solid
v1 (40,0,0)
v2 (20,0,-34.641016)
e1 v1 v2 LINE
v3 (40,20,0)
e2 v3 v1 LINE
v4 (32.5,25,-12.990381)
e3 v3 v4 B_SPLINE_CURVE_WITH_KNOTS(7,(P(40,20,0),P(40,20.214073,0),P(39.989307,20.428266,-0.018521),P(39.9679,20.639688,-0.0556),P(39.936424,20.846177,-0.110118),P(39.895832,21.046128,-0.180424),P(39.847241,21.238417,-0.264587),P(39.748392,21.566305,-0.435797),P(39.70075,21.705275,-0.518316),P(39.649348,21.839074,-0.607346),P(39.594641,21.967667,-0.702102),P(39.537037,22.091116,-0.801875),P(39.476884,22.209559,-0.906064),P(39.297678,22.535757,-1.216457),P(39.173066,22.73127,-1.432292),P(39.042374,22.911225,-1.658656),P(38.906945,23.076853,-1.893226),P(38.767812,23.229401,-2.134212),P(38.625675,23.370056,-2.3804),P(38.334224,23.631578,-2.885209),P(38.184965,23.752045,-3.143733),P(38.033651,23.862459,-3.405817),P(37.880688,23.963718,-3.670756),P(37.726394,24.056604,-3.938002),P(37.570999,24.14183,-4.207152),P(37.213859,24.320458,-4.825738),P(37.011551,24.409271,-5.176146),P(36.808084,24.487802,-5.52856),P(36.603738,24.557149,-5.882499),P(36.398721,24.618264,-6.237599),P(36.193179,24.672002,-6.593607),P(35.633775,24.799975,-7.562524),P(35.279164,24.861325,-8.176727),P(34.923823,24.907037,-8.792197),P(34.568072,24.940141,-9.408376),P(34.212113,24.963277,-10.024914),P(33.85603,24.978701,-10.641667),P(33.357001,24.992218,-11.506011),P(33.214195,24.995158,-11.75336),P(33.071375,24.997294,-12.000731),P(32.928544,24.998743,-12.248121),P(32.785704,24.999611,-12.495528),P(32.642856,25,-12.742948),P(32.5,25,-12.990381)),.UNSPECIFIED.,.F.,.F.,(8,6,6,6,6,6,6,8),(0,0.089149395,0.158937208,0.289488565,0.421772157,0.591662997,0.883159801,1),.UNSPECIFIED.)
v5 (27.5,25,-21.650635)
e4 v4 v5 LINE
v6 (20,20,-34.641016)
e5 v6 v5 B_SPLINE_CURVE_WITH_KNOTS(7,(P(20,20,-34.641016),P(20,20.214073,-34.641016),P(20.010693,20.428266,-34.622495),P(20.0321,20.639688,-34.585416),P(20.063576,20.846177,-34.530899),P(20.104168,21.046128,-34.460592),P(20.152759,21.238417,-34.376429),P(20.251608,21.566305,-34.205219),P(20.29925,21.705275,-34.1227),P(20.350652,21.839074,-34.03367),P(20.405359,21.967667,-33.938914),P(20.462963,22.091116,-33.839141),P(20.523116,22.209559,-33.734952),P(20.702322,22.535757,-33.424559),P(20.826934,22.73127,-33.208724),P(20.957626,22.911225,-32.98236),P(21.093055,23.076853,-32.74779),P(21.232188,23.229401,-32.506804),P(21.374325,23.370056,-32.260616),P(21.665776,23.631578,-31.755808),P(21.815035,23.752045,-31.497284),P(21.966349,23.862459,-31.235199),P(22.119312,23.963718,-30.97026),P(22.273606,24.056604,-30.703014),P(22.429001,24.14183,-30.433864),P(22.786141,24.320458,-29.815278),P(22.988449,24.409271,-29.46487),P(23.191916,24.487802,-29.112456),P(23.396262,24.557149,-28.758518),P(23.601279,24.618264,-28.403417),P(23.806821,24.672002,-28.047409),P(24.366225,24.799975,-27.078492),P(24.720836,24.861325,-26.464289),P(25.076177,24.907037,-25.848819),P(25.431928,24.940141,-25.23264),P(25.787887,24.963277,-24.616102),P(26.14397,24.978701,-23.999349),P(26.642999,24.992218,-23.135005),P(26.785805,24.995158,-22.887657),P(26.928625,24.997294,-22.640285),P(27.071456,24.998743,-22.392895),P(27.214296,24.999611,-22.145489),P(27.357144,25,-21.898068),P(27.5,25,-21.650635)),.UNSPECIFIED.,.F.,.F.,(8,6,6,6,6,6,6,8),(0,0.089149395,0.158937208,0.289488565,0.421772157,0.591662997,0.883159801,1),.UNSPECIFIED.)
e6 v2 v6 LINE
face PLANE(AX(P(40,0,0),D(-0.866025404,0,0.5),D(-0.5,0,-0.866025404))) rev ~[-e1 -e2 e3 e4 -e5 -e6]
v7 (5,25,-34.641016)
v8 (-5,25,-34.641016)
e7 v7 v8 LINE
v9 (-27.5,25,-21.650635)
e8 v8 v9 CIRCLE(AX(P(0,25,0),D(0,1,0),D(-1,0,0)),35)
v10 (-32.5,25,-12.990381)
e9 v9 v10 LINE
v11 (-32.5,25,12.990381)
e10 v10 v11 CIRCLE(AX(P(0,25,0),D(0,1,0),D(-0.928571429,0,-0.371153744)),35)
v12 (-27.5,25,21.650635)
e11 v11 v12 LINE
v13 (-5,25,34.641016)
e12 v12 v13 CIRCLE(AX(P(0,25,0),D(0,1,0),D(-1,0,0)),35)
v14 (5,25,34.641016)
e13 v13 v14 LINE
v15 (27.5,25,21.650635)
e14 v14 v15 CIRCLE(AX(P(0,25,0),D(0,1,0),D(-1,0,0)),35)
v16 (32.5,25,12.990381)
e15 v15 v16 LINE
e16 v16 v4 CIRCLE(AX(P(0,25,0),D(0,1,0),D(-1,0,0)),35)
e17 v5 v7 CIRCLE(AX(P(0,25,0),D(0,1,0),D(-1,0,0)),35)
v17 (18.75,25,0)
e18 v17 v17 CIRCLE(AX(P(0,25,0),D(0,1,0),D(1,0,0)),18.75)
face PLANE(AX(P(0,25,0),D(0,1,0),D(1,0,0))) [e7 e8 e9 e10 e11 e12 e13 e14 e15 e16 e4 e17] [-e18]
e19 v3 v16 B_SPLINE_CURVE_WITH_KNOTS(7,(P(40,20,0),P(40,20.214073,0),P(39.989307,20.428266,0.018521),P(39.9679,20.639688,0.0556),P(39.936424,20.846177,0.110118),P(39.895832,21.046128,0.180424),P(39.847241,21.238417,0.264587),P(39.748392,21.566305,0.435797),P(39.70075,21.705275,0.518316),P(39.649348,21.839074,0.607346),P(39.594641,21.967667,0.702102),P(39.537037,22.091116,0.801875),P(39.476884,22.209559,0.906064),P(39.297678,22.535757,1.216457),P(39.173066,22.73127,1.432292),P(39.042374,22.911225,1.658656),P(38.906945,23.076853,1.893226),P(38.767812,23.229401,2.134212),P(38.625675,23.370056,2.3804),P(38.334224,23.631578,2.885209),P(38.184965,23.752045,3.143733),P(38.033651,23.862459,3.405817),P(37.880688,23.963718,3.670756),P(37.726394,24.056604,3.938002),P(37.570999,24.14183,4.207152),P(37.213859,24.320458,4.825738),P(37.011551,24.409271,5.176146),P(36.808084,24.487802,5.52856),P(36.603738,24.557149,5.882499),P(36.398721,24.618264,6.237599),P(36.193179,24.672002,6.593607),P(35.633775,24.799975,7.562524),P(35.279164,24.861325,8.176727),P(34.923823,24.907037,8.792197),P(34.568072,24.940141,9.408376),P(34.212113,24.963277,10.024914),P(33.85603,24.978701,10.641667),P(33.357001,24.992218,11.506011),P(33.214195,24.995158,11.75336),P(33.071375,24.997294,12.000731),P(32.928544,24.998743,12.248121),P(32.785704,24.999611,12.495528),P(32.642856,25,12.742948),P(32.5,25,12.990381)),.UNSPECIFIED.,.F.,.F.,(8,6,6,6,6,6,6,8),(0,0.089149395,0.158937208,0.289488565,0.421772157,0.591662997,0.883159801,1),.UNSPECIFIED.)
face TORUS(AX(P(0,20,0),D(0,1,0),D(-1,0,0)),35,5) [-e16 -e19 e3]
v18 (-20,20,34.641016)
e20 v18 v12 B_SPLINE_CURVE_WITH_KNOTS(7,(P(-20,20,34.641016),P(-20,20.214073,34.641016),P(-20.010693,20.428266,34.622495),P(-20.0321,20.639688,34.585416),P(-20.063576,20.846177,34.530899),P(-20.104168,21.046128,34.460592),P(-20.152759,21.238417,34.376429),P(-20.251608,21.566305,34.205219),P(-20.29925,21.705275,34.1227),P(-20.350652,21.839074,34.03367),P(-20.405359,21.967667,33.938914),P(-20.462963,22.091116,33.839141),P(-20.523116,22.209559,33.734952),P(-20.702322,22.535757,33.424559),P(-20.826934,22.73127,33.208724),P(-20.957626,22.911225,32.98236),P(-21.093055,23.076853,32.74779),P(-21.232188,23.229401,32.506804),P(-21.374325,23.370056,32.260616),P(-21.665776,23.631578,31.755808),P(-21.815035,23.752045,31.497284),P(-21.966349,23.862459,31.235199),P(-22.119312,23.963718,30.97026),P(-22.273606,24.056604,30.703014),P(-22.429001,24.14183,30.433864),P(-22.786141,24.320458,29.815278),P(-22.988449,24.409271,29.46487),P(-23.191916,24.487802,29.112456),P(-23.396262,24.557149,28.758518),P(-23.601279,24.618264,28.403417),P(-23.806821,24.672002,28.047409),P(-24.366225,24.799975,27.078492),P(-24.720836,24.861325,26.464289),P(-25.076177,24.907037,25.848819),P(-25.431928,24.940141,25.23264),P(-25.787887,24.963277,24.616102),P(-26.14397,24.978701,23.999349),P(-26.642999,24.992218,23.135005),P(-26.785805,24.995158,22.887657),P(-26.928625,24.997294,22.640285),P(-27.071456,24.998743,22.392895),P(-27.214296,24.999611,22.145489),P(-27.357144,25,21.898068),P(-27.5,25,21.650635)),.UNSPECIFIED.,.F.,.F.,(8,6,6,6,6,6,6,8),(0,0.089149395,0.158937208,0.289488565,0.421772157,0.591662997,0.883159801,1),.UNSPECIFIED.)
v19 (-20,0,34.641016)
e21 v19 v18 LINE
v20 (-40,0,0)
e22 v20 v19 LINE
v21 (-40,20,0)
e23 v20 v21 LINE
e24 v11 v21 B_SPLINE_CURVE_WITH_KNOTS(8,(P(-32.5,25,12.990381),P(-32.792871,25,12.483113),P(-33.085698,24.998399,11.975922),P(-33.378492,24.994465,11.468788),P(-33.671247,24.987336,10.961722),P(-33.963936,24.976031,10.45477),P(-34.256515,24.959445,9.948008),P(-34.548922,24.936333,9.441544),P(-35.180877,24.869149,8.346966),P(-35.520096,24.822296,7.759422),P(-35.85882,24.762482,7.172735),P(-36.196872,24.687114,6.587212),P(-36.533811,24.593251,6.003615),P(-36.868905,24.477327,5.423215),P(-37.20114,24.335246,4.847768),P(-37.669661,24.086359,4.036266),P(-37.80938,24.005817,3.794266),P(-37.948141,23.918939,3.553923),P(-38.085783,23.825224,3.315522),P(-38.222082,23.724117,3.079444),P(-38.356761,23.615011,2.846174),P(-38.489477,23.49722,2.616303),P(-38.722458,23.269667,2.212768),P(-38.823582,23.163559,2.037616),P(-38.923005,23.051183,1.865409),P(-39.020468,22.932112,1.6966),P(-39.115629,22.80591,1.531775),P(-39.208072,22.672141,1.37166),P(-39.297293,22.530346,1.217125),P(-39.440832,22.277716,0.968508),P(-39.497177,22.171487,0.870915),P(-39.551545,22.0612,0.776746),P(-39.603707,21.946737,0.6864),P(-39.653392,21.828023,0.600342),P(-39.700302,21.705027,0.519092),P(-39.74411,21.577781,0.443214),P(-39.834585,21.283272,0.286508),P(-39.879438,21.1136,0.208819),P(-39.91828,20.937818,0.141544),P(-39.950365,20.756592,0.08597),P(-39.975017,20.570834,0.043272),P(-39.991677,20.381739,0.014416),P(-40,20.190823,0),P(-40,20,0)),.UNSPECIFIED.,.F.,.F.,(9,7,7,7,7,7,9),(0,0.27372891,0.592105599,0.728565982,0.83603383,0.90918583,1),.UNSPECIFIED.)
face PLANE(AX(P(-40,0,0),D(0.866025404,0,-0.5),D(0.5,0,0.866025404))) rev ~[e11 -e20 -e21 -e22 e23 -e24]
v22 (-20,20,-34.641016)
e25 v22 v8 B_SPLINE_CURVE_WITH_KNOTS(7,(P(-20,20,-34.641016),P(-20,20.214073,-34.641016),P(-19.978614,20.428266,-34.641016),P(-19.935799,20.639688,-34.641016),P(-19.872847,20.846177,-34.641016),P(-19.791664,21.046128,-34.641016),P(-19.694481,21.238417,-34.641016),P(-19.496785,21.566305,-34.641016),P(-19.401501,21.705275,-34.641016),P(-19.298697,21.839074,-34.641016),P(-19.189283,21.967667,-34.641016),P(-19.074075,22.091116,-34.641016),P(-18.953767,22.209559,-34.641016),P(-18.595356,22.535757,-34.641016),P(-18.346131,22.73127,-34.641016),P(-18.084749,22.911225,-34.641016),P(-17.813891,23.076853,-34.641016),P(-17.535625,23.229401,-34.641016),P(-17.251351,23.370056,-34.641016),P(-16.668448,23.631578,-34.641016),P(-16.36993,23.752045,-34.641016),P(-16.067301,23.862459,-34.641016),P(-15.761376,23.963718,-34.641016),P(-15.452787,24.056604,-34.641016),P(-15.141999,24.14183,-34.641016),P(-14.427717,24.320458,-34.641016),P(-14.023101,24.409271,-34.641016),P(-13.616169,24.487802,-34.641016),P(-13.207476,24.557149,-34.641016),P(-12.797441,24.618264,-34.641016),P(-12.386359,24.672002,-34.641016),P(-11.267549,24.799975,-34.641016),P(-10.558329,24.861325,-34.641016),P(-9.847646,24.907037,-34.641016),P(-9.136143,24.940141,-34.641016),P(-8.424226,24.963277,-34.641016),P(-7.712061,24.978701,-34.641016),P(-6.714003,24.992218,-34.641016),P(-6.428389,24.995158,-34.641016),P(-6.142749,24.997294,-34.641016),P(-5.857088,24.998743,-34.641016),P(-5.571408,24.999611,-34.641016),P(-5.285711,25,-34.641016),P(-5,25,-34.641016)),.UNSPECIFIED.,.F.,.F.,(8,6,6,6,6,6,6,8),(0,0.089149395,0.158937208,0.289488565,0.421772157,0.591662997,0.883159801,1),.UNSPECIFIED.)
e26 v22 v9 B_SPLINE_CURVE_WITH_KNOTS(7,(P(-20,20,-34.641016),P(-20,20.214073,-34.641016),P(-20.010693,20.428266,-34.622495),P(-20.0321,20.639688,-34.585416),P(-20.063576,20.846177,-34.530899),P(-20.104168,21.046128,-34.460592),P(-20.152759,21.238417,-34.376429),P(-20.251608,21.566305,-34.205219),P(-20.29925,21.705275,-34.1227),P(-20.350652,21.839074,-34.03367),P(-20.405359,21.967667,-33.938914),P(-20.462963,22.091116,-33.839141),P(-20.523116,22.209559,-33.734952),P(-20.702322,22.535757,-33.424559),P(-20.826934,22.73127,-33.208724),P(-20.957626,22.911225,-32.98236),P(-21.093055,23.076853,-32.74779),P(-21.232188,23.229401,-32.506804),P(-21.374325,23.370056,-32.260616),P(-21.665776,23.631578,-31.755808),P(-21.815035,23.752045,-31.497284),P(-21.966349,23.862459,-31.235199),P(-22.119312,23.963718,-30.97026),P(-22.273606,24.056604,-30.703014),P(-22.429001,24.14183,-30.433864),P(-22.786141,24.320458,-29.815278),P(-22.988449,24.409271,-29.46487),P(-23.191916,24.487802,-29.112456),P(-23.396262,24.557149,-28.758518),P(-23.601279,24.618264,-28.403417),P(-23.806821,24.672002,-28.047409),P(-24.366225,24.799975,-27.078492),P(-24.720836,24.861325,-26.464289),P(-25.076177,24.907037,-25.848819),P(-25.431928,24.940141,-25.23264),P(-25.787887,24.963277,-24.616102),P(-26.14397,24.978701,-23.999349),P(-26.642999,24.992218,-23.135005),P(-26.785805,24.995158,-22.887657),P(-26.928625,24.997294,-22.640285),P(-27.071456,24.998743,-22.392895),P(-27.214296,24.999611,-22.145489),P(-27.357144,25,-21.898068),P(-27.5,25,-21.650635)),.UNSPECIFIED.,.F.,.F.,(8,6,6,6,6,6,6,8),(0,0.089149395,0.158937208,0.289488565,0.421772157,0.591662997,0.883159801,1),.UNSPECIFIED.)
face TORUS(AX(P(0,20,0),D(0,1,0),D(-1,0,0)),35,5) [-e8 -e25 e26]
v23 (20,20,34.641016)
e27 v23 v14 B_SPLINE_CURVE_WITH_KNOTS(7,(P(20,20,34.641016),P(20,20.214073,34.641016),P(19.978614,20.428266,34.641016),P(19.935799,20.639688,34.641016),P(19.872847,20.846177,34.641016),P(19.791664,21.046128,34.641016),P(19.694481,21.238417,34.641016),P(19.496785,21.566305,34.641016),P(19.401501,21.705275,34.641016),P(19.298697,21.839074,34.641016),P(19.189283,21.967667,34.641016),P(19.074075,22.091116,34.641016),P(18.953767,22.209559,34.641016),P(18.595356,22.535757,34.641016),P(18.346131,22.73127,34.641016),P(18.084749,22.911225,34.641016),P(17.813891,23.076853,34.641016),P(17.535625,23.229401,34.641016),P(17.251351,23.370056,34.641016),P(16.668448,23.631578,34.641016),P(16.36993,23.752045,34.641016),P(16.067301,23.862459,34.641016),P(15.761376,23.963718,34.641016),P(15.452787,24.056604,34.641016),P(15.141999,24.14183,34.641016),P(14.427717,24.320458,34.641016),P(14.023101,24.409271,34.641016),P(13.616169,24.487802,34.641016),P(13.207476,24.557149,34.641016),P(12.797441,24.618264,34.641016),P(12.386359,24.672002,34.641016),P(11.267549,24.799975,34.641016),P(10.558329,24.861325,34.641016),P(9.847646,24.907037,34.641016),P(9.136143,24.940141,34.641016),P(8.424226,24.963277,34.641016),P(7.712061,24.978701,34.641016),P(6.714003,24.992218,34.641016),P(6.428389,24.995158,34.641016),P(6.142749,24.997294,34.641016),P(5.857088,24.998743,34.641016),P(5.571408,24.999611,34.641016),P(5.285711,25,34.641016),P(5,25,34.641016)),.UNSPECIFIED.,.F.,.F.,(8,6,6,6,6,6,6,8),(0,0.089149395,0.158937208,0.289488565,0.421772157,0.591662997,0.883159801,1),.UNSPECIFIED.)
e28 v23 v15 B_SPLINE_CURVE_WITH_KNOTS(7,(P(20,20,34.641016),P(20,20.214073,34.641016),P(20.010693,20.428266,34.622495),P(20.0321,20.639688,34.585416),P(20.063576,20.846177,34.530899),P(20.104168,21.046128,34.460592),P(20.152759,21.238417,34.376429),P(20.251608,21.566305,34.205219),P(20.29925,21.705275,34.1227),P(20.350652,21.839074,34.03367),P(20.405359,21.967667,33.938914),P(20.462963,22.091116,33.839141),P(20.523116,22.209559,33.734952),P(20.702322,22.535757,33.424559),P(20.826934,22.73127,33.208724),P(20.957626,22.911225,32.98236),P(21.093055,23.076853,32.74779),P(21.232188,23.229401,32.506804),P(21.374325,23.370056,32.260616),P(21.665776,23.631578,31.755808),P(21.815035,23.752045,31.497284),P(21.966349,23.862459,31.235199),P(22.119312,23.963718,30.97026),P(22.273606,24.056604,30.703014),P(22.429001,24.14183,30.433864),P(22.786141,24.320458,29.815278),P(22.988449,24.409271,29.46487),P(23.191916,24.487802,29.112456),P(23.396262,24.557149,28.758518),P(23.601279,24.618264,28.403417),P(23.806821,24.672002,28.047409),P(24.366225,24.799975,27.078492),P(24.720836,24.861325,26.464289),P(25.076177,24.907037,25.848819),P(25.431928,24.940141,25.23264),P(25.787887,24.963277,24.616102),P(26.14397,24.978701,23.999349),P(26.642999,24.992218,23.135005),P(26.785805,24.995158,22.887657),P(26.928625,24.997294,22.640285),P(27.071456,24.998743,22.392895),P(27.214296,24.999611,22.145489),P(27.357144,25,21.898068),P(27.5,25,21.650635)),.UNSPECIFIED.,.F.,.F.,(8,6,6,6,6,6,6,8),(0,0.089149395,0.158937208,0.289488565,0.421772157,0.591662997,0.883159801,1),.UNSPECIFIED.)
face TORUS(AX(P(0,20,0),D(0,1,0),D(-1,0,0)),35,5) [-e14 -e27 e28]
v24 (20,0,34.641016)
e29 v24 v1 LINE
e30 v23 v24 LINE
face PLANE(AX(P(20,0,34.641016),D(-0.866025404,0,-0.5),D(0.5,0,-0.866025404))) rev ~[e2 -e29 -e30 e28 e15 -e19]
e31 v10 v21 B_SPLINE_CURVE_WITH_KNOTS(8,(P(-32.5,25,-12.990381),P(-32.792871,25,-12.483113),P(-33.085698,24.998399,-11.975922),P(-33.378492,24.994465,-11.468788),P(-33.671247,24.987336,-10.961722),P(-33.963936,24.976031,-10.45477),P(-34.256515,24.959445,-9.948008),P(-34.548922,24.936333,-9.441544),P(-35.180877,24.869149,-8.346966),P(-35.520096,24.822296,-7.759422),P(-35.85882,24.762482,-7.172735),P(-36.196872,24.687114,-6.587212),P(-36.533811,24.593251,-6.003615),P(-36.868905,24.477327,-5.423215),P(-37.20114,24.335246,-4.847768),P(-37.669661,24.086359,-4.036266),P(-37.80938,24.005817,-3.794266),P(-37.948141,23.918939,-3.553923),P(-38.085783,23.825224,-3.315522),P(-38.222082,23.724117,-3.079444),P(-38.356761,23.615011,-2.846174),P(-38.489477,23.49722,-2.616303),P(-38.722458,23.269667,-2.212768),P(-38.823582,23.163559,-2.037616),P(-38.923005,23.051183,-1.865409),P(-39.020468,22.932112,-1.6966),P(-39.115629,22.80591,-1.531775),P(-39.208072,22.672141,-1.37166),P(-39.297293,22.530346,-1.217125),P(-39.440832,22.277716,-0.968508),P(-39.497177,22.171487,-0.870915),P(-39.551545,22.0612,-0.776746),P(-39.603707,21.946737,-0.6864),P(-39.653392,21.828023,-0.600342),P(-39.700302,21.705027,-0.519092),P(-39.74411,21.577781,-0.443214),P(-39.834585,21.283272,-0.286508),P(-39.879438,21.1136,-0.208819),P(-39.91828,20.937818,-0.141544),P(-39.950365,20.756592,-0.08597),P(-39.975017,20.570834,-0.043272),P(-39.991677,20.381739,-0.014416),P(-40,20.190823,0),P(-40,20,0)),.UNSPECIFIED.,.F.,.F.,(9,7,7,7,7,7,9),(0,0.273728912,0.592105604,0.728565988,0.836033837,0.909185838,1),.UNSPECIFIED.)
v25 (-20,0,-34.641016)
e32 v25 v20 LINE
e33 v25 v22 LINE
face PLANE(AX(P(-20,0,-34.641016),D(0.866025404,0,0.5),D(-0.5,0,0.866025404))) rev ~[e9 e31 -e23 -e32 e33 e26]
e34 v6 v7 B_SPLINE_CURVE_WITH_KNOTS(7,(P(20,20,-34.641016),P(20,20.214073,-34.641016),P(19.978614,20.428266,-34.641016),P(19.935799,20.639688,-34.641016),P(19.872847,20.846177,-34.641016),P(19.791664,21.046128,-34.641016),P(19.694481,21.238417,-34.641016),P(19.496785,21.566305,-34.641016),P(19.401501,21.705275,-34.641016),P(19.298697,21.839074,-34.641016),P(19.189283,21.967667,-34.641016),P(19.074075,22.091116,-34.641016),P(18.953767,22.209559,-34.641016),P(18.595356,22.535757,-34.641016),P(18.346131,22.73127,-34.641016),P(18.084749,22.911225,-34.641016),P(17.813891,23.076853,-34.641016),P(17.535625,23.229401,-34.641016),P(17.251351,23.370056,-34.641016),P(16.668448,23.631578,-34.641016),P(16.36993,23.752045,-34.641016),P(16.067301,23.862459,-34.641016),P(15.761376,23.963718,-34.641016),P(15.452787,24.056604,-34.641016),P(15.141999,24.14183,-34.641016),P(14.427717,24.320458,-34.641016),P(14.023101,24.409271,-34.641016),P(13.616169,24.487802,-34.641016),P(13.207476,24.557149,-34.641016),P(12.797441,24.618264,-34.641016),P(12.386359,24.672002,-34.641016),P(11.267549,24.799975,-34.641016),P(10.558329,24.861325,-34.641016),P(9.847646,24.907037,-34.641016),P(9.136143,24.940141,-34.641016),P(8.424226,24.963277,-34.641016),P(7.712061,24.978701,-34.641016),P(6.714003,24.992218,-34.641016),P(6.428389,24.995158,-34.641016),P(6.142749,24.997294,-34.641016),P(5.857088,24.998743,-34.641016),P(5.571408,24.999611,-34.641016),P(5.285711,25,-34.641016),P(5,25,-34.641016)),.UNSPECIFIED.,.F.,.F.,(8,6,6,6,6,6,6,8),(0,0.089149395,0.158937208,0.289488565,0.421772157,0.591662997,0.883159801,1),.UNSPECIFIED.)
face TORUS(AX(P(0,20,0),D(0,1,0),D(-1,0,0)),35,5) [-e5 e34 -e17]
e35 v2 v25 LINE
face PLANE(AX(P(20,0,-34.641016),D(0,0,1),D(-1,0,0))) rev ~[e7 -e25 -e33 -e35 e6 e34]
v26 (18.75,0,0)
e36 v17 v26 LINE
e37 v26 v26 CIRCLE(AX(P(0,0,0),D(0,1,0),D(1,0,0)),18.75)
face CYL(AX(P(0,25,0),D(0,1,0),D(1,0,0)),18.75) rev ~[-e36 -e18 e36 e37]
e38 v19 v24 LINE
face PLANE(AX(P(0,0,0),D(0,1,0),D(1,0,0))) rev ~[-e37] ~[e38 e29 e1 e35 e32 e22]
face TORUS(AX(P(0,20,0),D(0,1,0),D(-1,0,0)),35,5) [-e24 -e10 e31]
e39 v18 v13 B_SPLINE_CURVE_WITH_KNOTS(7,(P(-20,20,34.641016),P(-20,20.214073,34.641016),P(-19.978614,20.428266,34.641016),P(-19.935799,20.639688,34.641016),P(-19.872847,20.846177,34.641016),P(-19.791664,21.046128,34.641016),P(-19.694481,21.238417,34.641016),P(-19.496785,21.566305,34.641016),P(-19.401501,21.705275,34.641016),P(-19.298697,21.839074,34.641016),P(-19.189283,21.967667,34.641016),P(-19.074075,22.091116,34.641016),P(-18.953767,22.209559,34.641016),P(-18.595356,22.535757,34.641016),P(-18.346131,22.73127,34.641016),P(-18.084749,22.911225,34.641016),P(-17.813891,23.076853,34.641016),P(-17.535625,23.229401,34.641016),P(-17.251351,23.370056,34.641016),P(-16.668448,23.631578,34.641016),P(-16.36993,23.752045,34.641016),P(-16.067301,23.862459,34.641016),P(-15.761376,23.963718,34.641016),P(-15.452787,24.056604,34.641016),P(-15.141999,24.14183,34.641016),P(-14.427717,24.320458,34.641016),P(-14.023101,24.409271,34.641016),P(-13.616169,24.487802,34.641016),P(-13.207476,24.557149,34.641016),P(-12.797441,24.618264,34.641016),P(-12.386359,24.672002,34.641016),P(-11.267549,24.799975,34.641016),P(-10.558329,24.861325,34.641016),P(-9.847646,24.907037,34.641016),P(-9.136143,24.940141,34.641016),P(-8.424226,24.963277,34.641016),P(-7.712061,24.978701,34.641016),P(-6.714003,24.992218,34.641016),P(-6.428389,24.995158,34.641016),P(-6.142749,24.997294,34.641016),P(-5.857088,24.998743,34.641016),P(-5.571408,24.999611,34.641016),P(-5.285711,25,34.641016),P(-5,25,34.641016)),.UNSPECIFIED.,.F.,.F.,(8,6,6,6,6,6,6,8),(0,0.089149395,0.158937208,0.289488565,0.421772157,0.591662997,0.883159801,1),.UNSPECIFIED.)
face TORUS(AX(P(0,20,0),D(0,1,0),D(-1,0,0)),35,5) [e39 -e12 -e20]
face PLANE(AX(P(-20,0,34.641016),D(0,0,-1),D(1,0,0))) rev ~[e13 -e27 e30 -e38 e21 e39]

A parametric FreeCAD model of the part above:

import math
import FreeCAD as App
import Part
import Sketcher

V = App.Vector
Q = App.Units.Quantity

doc = App.newDocument("Part")
body = doc.addObject("PartDesign::Body", "Body")

# Sketch on XZ plane
sketch1 = doc.addObject("Sketcher::SketchObject", "Sketch")
body.addObject(sketch1)
sketch1.AttachmentSupport = (doc.XZ_Plane, [""])
sketch1.MapMode = "FlatFace"
sketch1.addGeometry([
    Part.LineSegment(V(40, 0, 0), V(20, -35, 0)),  # 0
    Part.LineSegment(V(20, -35, 0), V(-20, -35, 0)),  # 1
    Part.LineSegment(V(-20, -35, 0), V(-40, 0, 0)),  # 2
    Part.LineSegment(V(-40, 0, 0), V(-20, 35, 0)),  # 3
    Part.LineSegment(V(-20, 35, 0), V(20, 35, 0)),  # 4
    Part.LineSegment(V(20, 35, 0), V(40, 0, 0)),  # 5
], False)
sketch1.addConstraint([
    Sketcher.Constraint("Coincident", 0, 2, 1, 1),
    Sketcher.Constraint("Coincident", 1, 2, 2, 1),
    Sketcher.Constraint("Coincident", 2, 2, 3, 1),
    Sketcher.Constraint("Coincident", 3, 2, 4, 1),
    Sketcher.Constraint("Coincident", 4, 2, 5, 1),
    Sketcher.Constraint("Coincident", 5, 2, 0, 1),
    Sketcher.Constraint("Horizontal", 1),
    Sketcher.Constraint("Horizontal", 4),
    Sketcher.Constraint("Symmetric", 0, 2, 3, 2, -1, 1),
    Sketcher.Constraint("Symmetric", 2, 2, 5, 2, -1, 1),
    Sketcher.Constraint("PointOnObject", 2, 2, -1),
    Sketcher.Constraint("Parallel", 2, 5),
    Sketcher.Constraint("Vertical", 1, 2, 3, 2),
    Sketcher.Constraint("DistanceX", 1, 2, 1, 1, 40.0),
    Sketcher.Constraint("Angle", 0, Q("-120 deg")),
    Sketcher.Constraint("Distance", 0, 40.0),
])
pad1 = doc.addObject("PartDesign::Pad", "Pad")
body.addObject(pad1)
pad1.Profile = sketch1
pad1.Length = 25
pad1.Reversed = True

# Sketch on XY plane
sketch2 = doc.addObject("Sketcher::SketchObject", "Sketch001")
body.addObject(sketch2)
sketch2.AttachmentSupport = (doc.XY_Plane, [""])
sketch2.MapMode = "FlatFace"
sketch2.addGeometry([
    Part.LineSegment(V(-40, 19.79, 0), V(-40, 20, 0)),  # 0
    Part.ArcOfCircle(Part.Circle(V(-35, 20, 0), V(0, 0, 1), 5), math.radians(90), math.radians(180)),  # 1
    Part.LineSegment(V(-35, 25, 0), V(-37.76, 31.27, 0)),  # 2
    Part.LineSegment(V(-37.76, 31.27, 0), V(-44.97, 23.76, 0)),  # 3
    Part.LineSegment(V(-44.97, 23.76, 0), V(-40, 19.79, 0)),  # 4
], False)
sketch2.addConstraint([
    Sketcher.Constraint("Tangent", 0, 2, 1, 2),
    Sketcher.Constraint("Coincident", 1, 1, 2, 1),
    Sketcher.Constraint("Coincident", 2, 2, 3, 1),
    Sketcher.Constraint("Coincident", 3, 2, 4, 1),
    Sketcher.Constraint("Coincident", 4, 2, 0, 1),
    Sketcher.Constraint("Vertical", 0),
    Sketcher.Constraint("Radius", 1, 5.0),
    Sketcher.Constraint("DistanceX", 1, 3, -1, 1, 35.0),
    Sketcher.Constraint("DistanceY", -1, 1, 1, 3, 20.0),
    Sketcher.Constraint("DistanceX", 1, 1, -1, 1, 35.0),
    Sketcher.Constraint("Distance", 3, 10.410002),
    Sketcher.Constraint("DistanceX", 3, 2, 2, 2, 7.214999),
    Sketcher.Constraint("DistanceY", 0, 1, 0, 2, 0.21233),
    Sketcher.Constraint("Distance", 2, 6.847872),
    Sketcher.Constraint("DistanceY", -1, 1, 2, 2, 31.26803),
])
groove = doc.addObject("PartDesign::Groove", "Groove")
body.addObject(groove)
groove.Profile = sketch2
groove.ReferenceAxis = (sketch2, ["V_Axis"])
groove.Angle = 360

# Sketch on XZ plane
sketch3 = doc.addObject("Sketcher::SketchObject", "Sketch002")
body.addObject(sketch3)
sketch3.AttachmentSupport = (doc.XZ_Plane, [""])
sketch3.MapMode = "FlatFace"
sketch3.AttachmentOffset = App.Placement(V(0, 0, -25), App.Rotation())
sketch3.addGeometry(Part.Circle(V(0, 0, 0), V(0, 0, 1), 19), False)
sketch3.addConstraint([
    Sketcher.Constraint("Coincident", 0, 3, -1, 1),
    Sketcher.Constraint("Diameter", 0, 37.5),
])
pocket1 = doc.addObject("PartDesign::Pocket", "Pocket")
body.addObject(pocket1)
pocket1.Profile = sketch3
pocket1.Length = 49
pocket1.Reversed = True

doc.recompute()
